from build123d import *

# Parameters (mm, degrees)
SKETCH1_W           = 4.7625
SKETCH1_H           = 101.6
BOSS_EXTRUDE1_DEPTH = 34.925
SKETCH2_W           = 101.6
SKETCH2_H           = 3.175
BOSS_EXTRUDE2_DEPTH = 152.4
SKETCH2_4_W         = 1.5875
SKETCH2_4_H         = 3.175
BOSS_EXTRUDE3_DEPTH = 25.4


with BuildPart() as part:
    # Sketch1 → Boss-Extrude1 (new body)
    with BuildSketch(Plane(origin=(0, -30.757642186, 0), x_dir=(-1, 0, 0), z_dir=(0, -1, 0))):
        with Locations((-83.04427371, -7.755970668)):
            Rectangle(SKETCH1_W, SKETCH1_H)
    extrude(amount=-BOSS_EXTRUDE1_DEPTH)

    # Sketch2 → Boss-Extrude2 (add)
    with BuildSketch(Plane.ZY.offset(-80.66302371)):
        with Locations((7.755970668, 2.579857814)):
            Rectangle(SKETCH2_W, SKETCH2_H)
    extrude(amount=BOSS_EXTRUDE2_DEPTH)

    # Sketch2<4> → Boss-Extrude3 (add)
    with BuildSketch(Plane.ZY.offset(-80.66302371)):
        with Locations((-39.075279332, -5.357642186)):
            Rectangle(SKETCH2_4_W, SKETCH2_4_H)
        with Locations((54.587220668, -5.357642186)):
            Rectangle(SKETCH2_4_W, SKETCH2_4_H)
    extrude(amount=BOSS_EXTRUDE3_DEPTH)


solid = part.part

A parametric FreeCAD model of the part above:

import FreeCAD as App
import Part
import Sketcher
Q = App.Units.Quantity

doc = App.newDocument("Part")
body = doc.addObject("PartDesign::Body", "Body")

sketch1 = doc.addObject("Sketcher::SketchObject", "Sketch")
body.addObject(sketch1)
sketch1.AttachmentSupport = (doc.XZ_Plane, [""])
sketch1.MapMode = "FlatFace"
sketch1.AttachmentOffset = App.Placement(App.Vector(0, 0, 30.757642), App.Rotation())
sketch1.addGeometry(Part.LineSegment(App.Vector(85.4, -43, 0), App.Vector(85.4, 58.6, 0)), False)
sketch1.addGeometry(Part.LineSegment(App.Vector(85.4, 58.6, 0), App.Vector(80.7, 58.6, 0)), False)
sketch1.addGeometry(Part.LineSegment(App.Vector(80.7, 58.6, 0), App.Vector(80.7, -43, 0)), False)
sketch1.addGeometry(Part.LineSegment(App.Vector(80.7, -43, 0), App.Vector(85.4, -43, 0)), False)
sketch1.addConstraint(Sketcher.Constraint("Coincident", 0, 2, 1, 1))
sketch1.addConstraint(Sketcher.Constraint("Coincident", 1, 2, 2, 1))
sketch1.addConstraint(Sketcher.Constraint("Coincident", 2, 2, 3, 1))
sketch1.addConstraint(Sketcher.Constraint("Coincident", 3, 2, 0, 1))
sketch1.addConstraint(Sketcher.Constraint("Vertical", 0))
sketch1.addConstraint(Sketcher.Constraint("Horizontal", 1))
sketch1.addConstraint(Sketcher.Constraint("Vertical", 2))
sketch1.addConstraint(Sketcher.Constraint("Horizontal", 3))
sketch1.addConstraint(Sketcher.Constraint("DistanceY", 0, 1, 0, 2, Q("4 in")))
sketch1.addConstraint(Sketcher.Constraint("DistanceX", 1, 2, 1, 1, Q("0.1875 in")))
sketch1.addConstraint(Sketcher.Constraint("DistanceY", -1, 1, 0, 2, Q("58.555971 mm")))
sketch1.addConstraint(Sketcher.Constraint("DistanceX", -1, 1, 0, 2, Q("85.425524 mm")))
pad1 = doc.addObject("PartDesign::Pad", "Pad")
body.addObject(pad1)
pad1.Profile = sketch1
pad1.Length = Q("1.375 in")
pad1.Reversed = True

sketch2 = doc.addObject("Sketcher::SketchObject", "Sketch001")
body.addObject(sketch2)
sketch2.AttachmentSupport = (doc.YZ_Plane, [""])
sketch2.MapMode = "FlatFace"
sketch2.AttachmentOffset = App.Placement(App.Vector(0, 0, 80.663024), App.Rotation())
sketch2.addGeometry(Part.LineSegment(App.Vector(4.2, -43, 0), App.Vector(1, -43, 0)), False)
sketch2.addGeometry(Part.LineSegment(App.Vector(1, -43, 0), App.Vector(1, 58.6, 0)), False)
sketch2.addGeometry(Part.LineSegment(App.Vector(1, 58.6, 0), App.Vector(4.2, 58.6, 0)), False)
sketch2.addGeometry(Part.LineSegment(App.Vector(4.2, 58.6, 0), App.Vector(4.2, -43, 0)), False)
sketch2.addConstraint(Sketcher.Constraint("Coincident", 0, 2, 1, 1))
sketch2.addConstraint(Sketcher.Constraint("Coincident", 1, 2, 2, 1))
sketch2.addConstraint(Sketcher.Constraint("Coincident", 2, 2, 3, 1))
sketch2.addConstraint(Sketcher.Constraint("Coincident", 3, 2, 0, 1))
sketch2.addConstraint(Sketcher.Constraint("Horizontal", 0))
sketch2.addConstraint(Sketcher.Constraint("Vertical", 1))
sketch2.addConstraint(Sketcher.Constraint("Horizontal", 2))
sketch2.addConstraint(Sketcher.Constraint("Vertical", 3))
sketch2.addConstraint(Sketcher.Constraint("DistanceY", 1, 1, 1, 2, Q("4 in")))
sketch2.addConstraint(Sketcher.Constraint("DistanceX", 0, 2, 0, 1, Q("0.125 in")))
sketch2.addConstraint(Sketcher.Constraint("DistanceY", 0, 2, -1, 1, Q("43.044029 mm")))
sketch2.addConstraint(Sketcher.Constraint("DistanceX", -1, 1, 0, 2, Q("0.992358 mm")))
pad2 = doc.addObject("PartDesign::Pad", "Pad001")
body.addObject(pad2)
pad2.Profile = sketch2
pad2.Length = Q("6 in")
pad2.Reversed = True

sketch3 = doc.addObject("Sketcher::SketchObject", "Sketch002")
body.addObject(sketch3)
sketch3.AttachmentSupport = (doc.YZ_Plane, [""])
sketch3.MapMode = "FlatFace"
sketch3.AttachmentOffset = App.Placement(App.Vector(0, 0, 80.663024), App.Rotation())
sketch3.addGeometry(Part.LineSegment(App.Vector(-3.8, -39.9, 0), App.Vector(-6.9, -39.9, 0)), False)
sketch3.addGeometry(Part.LineSegment(App.Vector(-6.9, -39.9, 0), App.Vector(-6.9, -38.3, 0)), False)
sketch3.addGeometry(Part.LineSegment(App.Vector(-6.9, -38.3, 0), App.Vector(-3.8, -38.3, 0)), False)
sketch3.addGeometry(Part.LineSegment(App.Vector(-3.8, -38.3, 0), App.Vector(-3.8, -39.9, 0)), False)
sketch3.addGeometry(Part.LineSegment(App.Vector(-3.8, 53.8, 0), App.Vector(-6.9, 53.8, 0)), False)
sketch3.addGeometry(Part.LineSegment(App.Vector(-6.9, 53.8, 0), App.Vector(-6.9, 55.4, 0)), False)
sketch3.addGeometry(Part.LineSegment(App.Vector(-6.9, 55.4, 0), App.Vector(-3.8, 55.4, 0)), False)
sketch3.addGeometry(Part.LineSegment(App.Vector(-3.8, 55.4, 0), App.Vector(-3.8, 53.8, 0)), False)
sketch3.addConstraint(Sketcher.Constraint("Coincident", 0, 2, 1, 1))
sketch3.addConstraint(Sketcher.Constraint("Coincident", 1, 2, 2, 1))
sketch3.addConstraint(Sketcher.Constraint("Coincident", 2, 2, 3, 1))
sketch3.addConstraint(Sketcher.Constraint("Coincident", 3, 2, 0, 1))
sketch3.addConstraint(Sketcher.Constraint("Coincident", 4, 2, 5, 1))
sketch3.addConstraint(Sketcher.Constraint("Coincident", 5, 2, 6, 1))
sketch3.addConstraint(Sketcher.Constraint("Coincident", 6, 2, 7, 1))
sketch3.addConstraint(Sketcher.Constraint("Coincident", 7, 2, 4, 1))
sketch3.addConstraint(Sketcher.Constraint("Horizontal", 0))
sketch3.addConstraint(Sketcher.Constraint("Vertical", 1))
sketch3.addConstraint(Sketcher.Constraint("Horizontal", 2))
sketch3.addConstraint(Sketcher.Constraint("Vertical", 3))
sketch3.addConstraint(Sketcher.Constraint("Horizontal", 4))
sketch3.addConstraint(Sketcher.Constraint("Vertical", 5))
sketch3.addConstraint(Sketcher.Constraint("Horizontal", 6))
sketch3.addConstraint(Sketcher.Constraint("Vertical", 7))
sketch3.addConstraint(Sketcher.Constraint("Vertical", 1, 2, 4, 2))
sketch3.addConstraint(Sketcher.Constraint("Vertical", 3, 2, 6, 2))
sketch3.addConstraint(Sketcher.Constraint("Equal", 3, 5))
sketch3.addConstraint(Sketcher.Constraint("DistanceX", 0, 2, 0, 1, Q("0.125 in")))
sketch3.addConstraint(Sketcher.Constraint("DistanceY", 1, 1, 1, 2, Q("0.0625 in")))
sketch3.addConstraint(Sketcher.Constraint("DistanceY", 0, 2, 5, 2, Q("3.75 in")))
sketch3.addConstraint(Sketcher.Constraint("DistanceY", 0, 2, -1, 1, Q("39.869029 mm")))
sketch3.addConstraint(Sketcher.Constraint("DistanceX", 0, 2, -1, 1, Q("6.945142 mm")))
pad3 = doc.addObject("PartDesign::Pad", "Pad002")
body.addObject(pad3)
pad3.Profile = sketch3
pad3.Length = Q("1 in")
pad3.Reversed = True

doc.recompute()
